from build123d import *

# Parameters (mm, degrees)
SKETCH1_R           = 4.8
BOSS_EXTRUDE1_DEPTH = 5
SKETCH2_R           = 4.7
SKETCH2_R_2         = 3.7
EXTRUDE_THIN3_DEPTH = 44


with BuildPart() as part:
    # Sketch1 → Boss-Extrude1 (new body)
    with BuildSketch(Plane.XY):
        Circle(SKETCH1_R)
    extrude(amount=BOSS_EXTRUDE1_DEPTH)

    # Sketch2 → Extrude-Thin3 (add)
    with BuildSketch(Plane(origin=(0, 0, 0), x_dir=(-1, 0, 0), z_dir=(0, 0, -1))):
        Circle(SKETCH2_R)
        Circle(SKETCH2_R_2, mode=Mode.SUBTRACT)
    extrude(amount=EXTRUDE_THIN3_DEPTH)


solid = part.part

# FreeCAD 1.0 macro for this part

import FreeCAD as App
import Part
import Sketcher
Q = App.Units.Quantity

doc = App.newDocument("Part")
body = doc.addObject("PartDesign::Body", "Body")

sketch1 = doc.addObject("Sketcher::SketchObject", "Sketch")
body.addObject(sketch1)
sketch1.AttachmentSupport = (doc.XY_Plane, [""])
sketch1.MapMode = "FlatFace"
sketch1.addGeometry(Part.Circle(App.Vector(0, 0, 0), App.Vector(0, 0, 1), 4.8), False)
sketch1.addConstraint([
    Sketcher.Constraint("Coincident", 0, 3, -1, 1),
    Sketcher.Constraint("Diameter", 0, Q("9.6 mm")),
])
pad1 = doc.addObject("PartDesign::Pad", "Pad")
body.addObject(pad1)
pad1.Profile = sketch1
pad1.Length = 5

sketch2 = doc.addObject("Sketcher::SketchObject", "Sketch001")
body.addObject(sketch2)
sketch2.AttachmentSupport = (doc.XY_Plane, [""])
sketch2.MapMode = "FlatFace"
sketch2.addGeometry([
    Part.Circle(App.Vector(0, 0, 0), App.Vector(0, 0, 1), 4.7),
    Part.Circle(App.Vector(0, 0, 0), App.Vector(0, 0, 1), 3.7),
], False)
sketch2.addConstraint([
    Sketcher.Constraint("Coincident", 0, 3, -1, 1),
    Sketcher.Constraint("Coincident", 1, 3, -1, 1),
    Sketcher.Constraint("Diameter", 0, Q("9.4 mm")),
    Sketcher.Constraint("Diameter", 1, Q("7.4 mm")),
])
pad2 = doc.addObject("PartDesign::Pad", "Pad001")
body.addObject(pad2)
pad2.Profile = sketch2
pad2.Length = 44
pad2.Reversed = True

doc.recompute()
